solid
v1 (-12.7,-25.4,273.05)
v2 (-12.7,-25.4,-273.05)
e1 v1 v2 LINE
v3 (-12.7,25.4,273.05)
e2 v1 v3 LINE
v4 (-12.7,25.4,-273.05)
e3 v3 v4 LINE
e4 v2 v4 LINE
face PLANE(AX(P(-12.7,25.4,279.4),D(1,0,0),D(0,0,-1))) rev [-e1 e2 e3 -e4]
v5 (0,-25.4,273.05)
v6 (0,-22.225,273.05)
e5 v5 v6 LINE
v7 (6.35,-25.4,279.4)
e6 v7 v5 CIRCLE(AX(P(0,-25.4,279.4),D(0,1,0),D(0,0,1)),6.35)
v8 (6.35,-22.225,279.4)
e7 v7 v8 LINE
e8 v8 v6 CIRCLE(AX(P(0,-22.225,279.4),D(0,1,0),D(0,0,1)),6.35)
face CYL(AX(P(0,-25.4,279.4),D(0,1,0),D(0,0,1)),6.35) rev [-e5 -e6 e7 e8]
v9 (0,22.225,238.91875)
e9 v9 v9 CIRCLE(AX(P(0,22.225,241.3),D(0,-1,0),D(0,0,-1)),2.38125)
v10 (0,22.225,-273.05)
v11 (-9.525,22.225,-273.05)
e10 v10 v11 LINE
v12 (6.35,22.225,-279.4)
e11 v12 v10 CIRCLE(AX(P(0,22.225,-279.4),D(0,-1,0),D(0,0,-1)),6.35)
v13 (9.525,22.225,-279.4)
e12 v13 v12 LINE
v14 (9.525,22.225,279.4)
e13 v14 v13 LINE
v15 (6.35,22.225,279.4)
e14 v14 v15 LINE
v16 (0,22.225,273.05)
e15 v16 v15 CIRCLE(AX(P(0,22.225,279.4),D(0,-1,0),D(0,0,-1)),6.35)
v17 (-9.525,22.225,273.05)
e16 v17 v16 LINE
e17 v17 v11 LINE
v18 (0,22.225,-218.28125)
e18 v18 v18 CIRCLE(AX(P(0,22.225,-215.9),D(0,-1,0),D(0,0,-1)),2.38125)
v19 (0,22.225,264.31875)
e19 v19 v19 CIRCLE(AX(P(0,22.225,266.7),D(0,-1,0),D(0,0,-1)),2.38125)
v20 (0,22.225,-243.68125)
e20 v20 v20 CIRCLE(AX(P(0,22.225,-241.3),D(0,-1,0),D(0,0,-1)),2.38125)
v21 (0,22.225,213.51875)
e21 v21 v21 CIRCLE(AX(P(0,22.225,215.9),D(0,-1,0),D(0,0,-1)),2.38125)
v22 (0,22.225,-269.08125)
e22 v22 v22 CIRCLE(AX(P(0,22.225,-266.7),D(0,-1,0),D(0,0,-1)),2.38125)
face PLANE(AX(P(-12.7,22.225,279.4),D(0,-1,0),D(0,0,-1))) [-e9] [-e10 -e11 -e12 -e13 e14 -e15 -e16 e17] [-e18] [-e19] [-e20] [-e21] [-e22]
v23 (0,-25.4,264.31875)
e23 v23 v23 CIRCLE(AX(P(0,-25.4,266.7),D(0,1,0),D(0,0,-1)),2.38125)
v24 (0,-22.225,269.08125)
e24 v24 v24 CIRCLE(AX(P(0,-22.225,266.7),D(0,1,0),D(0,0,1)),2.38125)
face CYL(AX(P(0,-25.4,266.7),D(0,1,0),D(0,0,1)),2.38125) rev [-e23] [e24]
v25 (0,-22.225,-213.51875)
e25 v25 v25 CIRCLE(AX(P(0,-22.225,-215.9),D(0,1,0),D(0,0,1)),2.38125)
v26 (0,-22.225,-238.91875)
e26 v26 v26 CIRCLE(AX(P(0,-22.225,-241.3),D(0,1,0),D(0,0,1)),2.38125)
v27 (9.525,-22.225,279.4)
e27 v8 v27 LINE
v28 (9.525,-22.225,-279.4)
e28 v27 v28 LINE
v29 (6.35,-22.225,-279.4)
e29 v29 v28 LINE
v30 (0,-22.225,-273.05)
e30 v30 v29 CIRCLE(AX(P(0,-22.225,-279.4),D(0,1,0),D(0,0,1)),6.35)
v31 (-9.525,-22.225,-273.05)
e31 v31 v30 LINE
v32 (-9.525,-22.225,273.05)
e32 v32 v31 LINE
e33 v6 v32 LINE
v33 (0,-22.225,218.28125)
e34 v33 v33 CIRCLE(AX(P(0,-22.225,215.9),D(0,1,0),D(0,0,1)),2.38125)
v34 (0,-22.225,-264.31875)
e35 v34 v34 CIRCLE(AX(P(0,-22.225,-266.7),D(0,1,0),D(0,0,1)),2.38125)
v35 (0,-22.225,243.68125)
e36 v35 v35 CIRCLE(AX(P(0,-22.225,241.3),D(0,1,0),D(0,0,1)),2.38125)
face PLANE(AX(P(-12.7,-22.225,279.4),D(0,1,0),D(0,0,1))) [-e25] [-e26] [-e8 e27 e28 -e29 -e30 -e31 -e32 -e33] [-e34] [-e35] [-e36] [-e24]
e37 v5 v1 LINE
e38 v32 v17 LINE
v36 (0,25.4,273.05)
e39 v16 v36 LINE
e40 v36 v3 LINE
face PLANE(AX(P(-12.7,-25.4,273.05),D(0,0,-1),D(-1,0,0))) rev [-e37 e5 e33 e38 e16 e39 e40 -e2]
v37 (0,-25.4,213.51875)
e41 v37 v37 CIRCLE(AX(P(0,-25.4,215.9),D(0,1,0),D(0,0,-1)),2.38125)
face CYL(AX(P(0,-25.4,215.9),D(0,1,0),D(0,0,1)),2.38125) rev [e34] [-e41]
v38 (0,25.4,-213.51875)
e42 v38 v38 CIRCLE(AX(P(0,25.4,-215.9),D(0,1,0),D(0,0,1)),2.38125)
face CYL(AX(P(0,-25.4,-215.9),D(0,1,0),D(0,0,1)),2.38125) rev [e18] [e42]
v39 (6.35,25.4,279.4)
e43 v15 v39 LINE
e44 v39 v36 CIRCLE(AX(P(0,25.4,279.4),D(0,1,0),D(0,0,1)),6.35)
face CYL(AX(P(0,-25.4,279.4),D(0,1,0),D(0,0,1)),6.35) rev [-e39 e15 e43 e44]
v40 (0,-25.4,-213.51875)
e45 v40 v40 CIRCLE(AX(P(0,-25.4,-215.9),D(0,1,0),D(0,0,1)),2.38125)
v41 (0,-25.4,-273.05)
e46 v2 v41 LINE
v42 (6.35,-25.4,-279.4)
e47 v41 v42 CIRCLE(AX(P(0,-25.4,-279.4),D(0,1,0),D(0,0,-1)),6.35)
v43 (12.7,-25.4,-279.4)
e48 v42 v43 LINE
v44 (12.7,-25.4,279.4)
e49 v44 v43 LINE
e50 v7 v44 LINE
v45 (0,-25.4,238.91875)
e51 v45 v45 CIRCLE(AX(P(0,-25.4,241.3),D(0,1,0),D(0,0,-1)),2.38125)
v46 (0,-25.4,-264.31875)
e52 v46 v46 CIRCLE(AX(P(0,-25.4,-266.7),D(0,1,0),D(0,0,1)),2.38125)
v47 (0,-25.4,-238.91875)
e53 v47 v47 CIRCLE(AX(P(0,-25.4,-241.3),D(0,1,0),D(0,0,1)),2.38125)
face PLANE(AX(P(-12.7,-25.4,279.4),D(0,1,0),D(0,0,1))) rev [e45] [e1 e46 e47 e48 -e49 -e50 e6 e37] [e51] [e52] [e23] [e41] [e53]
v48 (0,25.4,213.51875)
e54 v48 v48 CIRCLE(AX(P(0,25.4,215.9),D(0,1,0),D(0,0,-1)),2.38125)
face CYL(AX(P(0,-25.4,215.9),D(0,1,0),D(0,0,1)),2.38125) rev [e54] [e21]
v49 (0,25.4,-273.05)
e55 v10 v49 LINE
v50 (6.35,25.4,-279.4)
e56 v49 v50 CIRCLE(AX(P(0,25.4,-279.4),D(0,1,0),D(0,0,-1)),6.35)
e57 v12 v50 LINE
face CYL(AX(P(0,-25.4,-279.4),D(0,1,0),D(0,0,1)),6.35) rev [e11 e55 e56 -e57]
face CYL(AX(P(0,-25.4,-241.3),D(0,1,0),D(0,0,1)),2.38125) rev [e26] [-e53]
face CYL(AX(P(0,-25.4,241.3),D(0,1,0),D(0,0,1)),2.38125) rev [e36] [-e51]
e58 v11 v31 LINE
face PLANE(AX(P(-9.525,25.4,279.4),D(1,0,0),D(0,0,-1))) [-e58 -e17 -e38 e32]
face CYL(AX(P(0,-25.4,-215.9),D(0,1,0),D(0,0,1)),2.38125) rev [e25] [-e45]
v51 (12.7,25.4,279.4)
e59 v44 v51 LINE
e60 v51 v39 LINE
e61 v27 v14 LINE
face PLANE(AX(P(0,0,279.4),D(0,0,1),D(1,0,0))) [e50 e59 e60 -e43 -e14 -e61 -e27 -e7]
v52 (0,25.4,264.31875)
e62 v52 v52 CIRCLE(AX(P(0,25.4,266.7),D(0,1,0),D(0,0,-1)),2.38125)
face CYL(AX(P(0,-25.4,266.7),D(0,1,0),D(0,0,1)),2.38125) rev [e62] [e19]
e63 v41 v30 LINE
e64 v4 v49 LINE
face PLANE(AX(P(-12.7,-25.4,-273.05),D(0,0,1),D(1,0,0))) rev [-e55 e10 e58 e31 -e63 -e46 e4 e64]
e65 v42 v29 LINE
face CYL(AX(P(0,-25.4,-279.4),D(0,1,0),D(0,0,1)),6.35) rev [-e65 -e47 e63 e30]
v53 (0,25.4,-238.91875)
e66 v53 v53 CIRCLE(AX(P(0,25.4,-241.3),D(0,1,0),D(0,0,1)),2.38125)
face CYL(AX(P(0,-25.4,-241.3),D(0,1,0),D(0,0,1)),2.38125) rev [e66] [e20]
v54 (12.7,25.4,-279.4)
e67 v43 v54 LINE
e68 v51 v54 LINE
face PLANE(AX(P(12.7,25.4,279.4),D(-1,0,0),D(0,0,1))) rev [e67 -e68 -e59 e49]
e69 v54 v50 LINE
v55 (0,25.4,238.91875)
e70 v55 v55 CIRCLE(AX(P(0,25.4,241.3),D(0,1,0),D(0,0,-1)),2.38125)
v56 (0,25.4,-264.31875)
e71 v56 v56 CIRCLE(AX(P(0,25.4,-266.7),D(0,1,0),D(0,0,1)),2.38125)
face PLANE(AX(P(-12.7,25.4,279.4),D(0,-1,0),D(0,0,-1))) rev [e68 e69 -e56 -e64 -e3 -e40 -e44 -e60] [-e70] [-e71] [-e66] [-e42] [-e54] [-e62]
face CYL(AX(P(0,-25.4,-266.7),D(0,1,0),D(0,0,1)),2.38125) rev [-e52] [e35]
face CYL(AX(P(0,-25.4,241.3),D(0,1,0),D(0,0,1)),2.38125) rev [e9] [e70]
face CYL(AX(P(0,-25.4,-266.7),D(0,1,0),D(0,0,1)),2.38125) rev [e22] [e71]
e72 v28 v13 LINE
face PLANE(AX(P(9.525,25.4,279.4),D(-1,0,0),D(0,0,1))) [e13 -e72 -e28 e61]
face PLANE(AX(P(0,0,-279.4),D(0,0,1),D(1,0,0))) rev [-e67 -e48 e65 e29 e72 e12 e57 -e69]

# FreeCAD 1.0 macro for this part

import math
import FreeCAD as App
import Part
import Sketcher

V = App.Vector
Q = App.Units.Quantity


def faces_at(feature, points):
    """Names of the faces that lie closest to the given points."""
    faces = feature.Shape.Faces
    near = lambda p: min(range(len(faces)), key=lambda i: faces[i].distToShape(Part.Vertex(*p))[0])
    return sorted({f"Face{near(p) + 1}" for p in points})

doc = App.newDocument("Part")
body = doc.addObject("PartDesign::Body", "Body")

# Sketch on XY plane
sketch1 = body.newObject("Sketcher::SketchObject", "Sketch")
sketch1.AttachmentSupport = (doc.getObject("XY_Plane"), [""])
sketch1.MapMode = "FlatFace"
sketch1.addGeometry([
    Part.LineSegment(V(-13, 25, 0), V(-13, -25, 0)),
    Part.LineSegment(V(-13, -25, 0), V(13, -25, 0)),
    Part.LineSegment(V(13, -25, 0), V(13, 25, 0)),
    Part.LineSegment(V(13, 25, 0), V(-13, 25, 0)),
], False)
sketch1.addConstraint([
    Sketcher.Constraint("Coincident", 0, 2, 1, 1),
    Sketcher.Constraint("Coincident", 1, 2, 2, 1),
    Sketcher.Constraint("Coincident", 2, 2, 3, 1),
    Sketcher.Constraint("Coincident", 3, 2, 0, 1),
    Sketcher.Constraint("Vertical", 0),
    Sketcher.Constraint("Horizontal", 1),
    Sketcher.Constraint("Vertical", 2),
    Sketcher.Constraint("Horizontal", 3),
    Sketcher.Constraint("Symmetric", 0, 2, 2, 2, -1, 1),
    Sketcher.Constraint("DistanceX", 1, 1, 1, 2, Q("1 in")),
    Sketcher.Constraint("DistanceY", 0, 2, 0, 1, Q("2 in")),
])
pad1 = body.newObject("PartDesign::Pad", "Pad")
pad1.Profile = sketch1
pad1.Length = Q("22 in")
pad1.Midplane = True
doc.recompute()

thickness = body.newObject("PartDesign::Thickness", "Thickness")
thickness.Base = (pad1, faces_at(pad1, [(0, 0, 279.4), (0, 0, -279.4)]))
thickness.Value = Q("0.125 in")
thickness.Reversed = True
thickness.Join = "Intersection"

# Sketch on XZ plane
sketch2 = body.newObject("Sketcher::SketchObject", "Sketch001")
sketch2.AttachmentSupport = (doc.getObject("XZ_Plane"), [""])
sketch2.MapMode = "FlatFace"
sketch2.AttachmentOffset = App.Placement(V(0, 0, -1 * 25.4), App.Rotation())
sketch2.addGeometry([
    Part.Circle(V(0, -266.7, 0), V(0, 0, 1), 2.4),  # 0
    Part.Circle(V(0, -241.3, 0), V(0, 0, 1), 2.4),  # 1
    Part.Circle(V(0, -215.9, 0), V(0, 0, 1), 2.4),  # 2
    Part.Circle(V(0, 215.9, 0), V(0, 0, 1), 2.4),  # 3
    Part.Circle(V(0, 241.3, 0), V(0, 0, 1), 2.4),  # 4
    Part.Circle(V(0, 266.7, 0), V(0, 0, 1), 2.4),  # 5
    Part.LineSegment(V(6.3, -279.4, 0), V(-12.7, -279.4, 0)),  # 6
    Part.LineSegment(V(-12.7, -279.4, 0), V(-12.7, -273.1, 0)),  # 7
    Part.LineSegment(V(-12.7, -273.1, 0), V(0, -273.1, 0)),  # 8
    Part.ArcOfCircle(Part.Circle(V(0, -279.4, 0), V(0, 0, 1), 6.3), math.radians(0), math.radians(90)),  # 9
    Part.LineSegment(V(0, 273.1, 0), V(-12.7, 273.1, 0)),  # 10
    Part.LineSegment(V(-12.7, 273.1, 0), V(-12.7, 279.4, 0)),  # 11
    Part.LineSegment(V(-12.7, 279.4, 0), V(6.3, 279.4, 0)),  # 12
    Part.ArcOfCircle(Part.Circle(V(0, 279.4, 0), V(0, 0, 1), 6.3), math.radians(-90), math.radians(0)),  # 13
], False)
sketch2.addConstraint([
    Sketcher.Constraint("Coincident", 6, 2, 7, 1),
    Sketcher.Constraint("Coincident", 7, 2, 8, 1),
    Sketcher.Constraint("Tangent", 8, 2, 9, 2),
    Sketcher.Constraint("Coincident", 9, 1, 6, 1),
    Sketcher.Constraint("Coincident", 10, 2, 11, 1),
    Sketcher.Constraint("Coincident", 11, 2, 12, 1),
    Sketcher.Constraint("Coincident", 12, 2, 13, 2),
    Sketcher.Constraint("Tangent", 13, 1, 10, 1),
    Sketcher.Constraint("Horizontal", 6),
    Sketcher.Constraint("Vertical", 7),
    Sketcher.Constraint("Horizontal", 8),
    Sketcher.Constraint("Horizontal", 10),
    Sketcher.Constraint("Vertical", 11),
    Sketcher.Constraint("Horizontal", 12),
    Sketcher.Constraint("Equal", 0, 1),
    Sketcher.Constraint("Equal", 1, 2),
    Sketcher.Constraint("Equal", 2, 3),
    Sketcher.Constraint("Equal", 3, 4),
    Sketcher.Constraint("Equal", 4, 5),
    Sketcher.Constraint("Equal", 9, 13),
    Sketcher.Constraint("Symmetric", 2, 3, 3, 3, -1, 1),
    Sketcher.Constraint("Symmetric", 1, 3, 4, 3, -1, 1),
    Sketcher.Constraint("Symmetric", 0, 3, 5, 3, -1, 1),
    Sketcher.Constraint("Symmetric", 9, 3, 13, 3, -1, 1),
    Sketcher.Constraint("Symmetric", 6, 2, 11, 2, -1),
    Sketcher.Constraint("PointOnObject", 0, 3, -2),
    Sketcher.Constraint("PointOnObject", 1, 3, -2),
    Sketcher.Constraint("PointOnObject", 2, 3, -2),
    Sketcher.Constraint("PointOnObject", 9, 3, -2),
    Sketcher.Constraint("Horizontal", 9, 3, 6, 2),
    Sketcher.Constraint("Radius", 9, Q("0.25 in")),
    Sketcher.Constraint("Diameter", 0, Q("0.1875 in")),
    Sketcher.Constraint("DistanceX", 8, 1, 8, 2, Q("0.5 in")),
    Sketcher.Constraint("DistanceY", 9, 3, -1, 1, Q("11 in")),
    Sketcher.Constraint("DistanceY", 0, 3, 1, 3, Q("1 in")),
    Sketcher.Constraint("DistanceY", 1, 3, 2, 3, Q("1 in")),
    Sketcher.Constraint("DistanceY", 2, 3, 3, 3, Q("17 in")),
])
pocket1 = body.newObject("PartDesign::Pocket", "Pocket")
pocket1.Profile = sketch2
pocket1.Type = "ThroughAll"
pocket1.Reversed = True

doc.recompute()
